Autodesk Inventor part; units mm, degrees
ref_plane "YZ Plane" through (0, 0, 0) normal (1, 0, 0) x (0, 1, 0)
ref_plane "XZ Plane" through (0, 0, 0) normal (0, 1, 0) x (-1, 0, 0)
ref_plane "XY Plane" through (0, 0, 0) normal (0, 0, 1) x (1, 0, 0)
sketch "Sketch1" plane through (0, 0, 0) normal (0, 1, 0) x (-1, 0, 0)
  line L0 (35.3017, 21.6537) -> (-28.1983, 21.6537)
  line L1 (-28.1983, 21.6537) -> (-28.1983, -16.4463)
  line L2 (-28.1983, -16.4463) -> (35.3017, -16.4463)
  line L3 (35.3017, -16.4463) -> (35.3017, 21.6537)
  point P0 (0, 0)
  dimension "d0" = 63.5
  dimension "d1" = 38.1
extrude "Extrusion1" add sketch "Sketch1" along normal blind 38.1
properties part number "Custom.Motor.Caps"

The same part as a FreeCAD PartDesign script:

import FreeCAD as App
import Part
import Sketcher

V = App.Vector
Q = App.Units.Quantity

doc = App.newDocument("Part")
body = doc.addObject("PartDesign::Body", "Body")

# Sketch on XZ plane
sketch1 = doc.addObject("Sketcher::SketchObject", "Sketch")
body.addObject(sketch1)
sketch1.AttachmentSupport = (doc.XZ_Plane, [""])
sketch1.MapMode = "FlatFace"
sketch1.addGeometry(Part.LineSegment(V(-35, -16, 0), V(-35, 22, 0)), False)
sketch1.addGeometry(Part.LineSegment(V(-35, 22, 0), V(28, 22, 0)), False)
sketch1.addGeometry(Part.LineSegment(V(28, 22, 0), V(28, -16, 0)), False)
sketch1.addGeometry(Part.LineSegment(V(28, -16, 0), V(-35, -16, 0)), False)
sketch1.addConstraint(Sketcher.Constraint("Coincident", 0, 2, 1, 1))
sketch1.addConstraint(Sketcher.Constraint("Coincident", 1, 2, 2, 1))
sketch1.addConstraint(Sketcher.Constraint("Coincident", 2, 2, 3, 1))
sketch1.addConstraint(Sketcher.Constraint("Coincident", 3, 2, 0, 1))
sketch1.addConstraint(Sketcher.Constraint("Vertical", 0))
sketch1.addConstraint(Sketcher.Constraint("Horizontal", 1))
sketch1.addConstraint(Sketcher.Constraint("Vertical", 2))
sketch1.addConstraint(Sketcher.Constraint("Horizontal", 3))
sketch1.addConstraint(Sketcher.Constraint("DistanceX", 1, 1, 1, 2, Q("2.5 in")))
sketch1.addConstraint(Sketcher.Constraint("DistanceY", 0, 1, 0, 2, Q("1.5 in")))
sketch1.addConstraint(Sketcher.Constraint("DistanceY", -1, 1, 0, 2, Q("0.8525 in")))
sketch1.addConstraint(Sketcher.Constraint("DistanceX", 0, 2, -1, 1, Q("35.3017 mm")))
pad1 = doc.addObject("PartDesign::Pad", "Pad")
body.addObject(pad1)
pad1.Profile = sketch1
pad1.Length = Q("1.5 in")
pad1.Reversed = True

doc.recompute()
